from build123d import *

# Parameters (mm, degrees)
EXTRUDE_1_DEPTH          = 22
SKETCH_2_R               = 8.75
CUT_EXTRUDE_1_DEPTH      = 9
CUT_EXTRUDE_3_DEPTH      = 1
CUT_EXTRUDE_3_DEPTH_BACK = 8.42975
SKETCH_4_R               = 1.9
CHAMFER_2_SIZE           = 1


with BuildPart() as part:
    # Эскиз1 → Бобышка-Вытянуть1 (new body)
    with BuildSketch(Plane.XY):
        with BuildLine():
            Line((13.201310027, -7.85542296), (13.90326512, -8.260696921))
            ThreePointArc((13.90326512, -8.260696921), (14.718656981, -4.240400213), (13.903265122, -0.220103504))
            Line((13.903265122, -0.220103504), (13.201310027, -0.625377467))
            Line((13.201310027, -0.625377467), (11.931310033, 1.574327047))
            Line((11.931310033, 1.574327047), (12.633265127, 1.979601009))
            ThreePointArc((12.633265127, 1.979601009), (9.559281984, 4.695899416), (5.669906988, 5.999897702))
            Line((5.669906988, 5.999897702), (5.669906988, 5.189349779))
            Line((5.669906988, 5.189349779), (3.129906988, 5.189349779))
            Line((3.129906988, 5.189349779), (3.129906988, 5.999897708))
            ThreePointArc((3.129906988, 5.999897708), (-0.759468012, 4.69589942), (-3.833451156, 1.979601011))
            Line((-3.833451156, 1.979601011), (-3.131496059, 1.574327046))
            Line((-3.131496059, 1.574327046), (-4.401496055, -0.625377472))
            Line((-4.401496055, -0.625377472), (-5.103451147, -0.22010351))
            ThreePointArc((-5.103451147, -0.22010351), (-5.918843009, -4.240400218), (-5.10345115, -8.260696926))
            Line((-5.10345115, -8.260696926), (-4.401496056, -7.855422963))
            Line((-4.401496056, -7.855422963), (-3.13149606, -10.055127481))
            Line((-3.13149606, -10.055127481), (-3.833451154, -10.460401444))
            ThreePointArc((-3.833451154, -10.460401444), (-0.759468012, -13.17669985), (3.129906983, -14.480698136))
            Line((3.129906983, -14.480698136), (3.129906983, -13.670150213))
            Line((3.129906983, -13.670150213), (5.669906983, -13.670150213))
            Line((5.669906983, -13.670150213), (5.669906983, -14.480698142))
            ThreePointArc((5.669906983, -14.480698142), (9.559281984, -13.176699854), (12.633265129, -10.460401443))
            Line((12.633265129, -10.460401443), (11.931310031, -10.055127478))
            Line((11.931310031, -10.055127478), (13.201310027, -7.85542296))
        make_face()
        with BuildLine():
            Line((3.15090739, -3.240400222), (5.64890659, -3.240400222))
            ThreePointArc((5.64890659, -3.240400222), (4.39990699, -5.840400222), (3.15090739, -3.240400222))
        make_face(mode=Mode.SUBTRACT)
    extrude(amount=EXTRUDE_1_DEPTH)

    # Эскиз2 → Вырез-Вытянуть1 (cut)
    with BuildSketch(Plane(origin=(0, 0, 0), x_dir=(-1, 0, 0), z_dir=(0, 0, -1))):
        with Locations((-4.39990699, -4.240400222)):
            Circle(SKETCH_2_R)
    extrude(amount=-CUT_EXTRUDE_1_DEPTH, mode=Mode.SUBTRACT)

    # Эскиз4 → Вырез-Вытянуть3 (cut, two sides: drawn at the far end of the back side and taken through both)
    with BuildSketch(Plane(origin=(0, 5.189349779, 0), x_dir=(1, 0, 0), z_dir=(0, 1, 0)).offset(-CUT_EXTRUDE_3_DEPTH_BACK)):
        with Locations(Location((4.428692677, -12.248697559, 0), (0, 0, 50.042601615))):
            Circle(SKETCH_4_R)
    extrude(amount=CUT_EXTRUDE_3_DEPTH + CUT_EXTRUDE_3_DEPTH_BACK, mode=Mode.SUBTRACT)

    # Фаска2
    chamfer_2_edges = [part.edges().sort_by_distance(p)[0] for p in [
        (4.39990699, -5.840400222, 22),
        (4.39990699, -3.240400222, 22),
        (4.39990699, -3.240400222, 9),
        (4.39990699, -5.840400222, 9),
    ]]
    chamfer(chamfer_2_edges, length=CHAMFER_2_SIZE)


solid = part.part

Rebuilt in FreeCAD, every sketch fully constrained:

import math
import FreeCAD as App
import Part
import Sketcher
from FreeCAD import Vector
Q = App.Units.Quantity


def edges_at(feature, points):
    """Names of the edges that pass closest to the given points."""
    edges = feature.Shape.Edges
    near = lambda p: min(range(len(edges)), key=lambda i: edges[i].distToShape(Part.Vertex(*p))[0])
    return sorted({f"Edge{near(p) + 1}" for p in points})

doc = App.newDocument("Part")
body = doc.addObject("PartDesign::Body", "Body")

# Sketch on XY plane
sketch1 = body.newObject("Sketcher::SketchObject", "Sketch")
sketch1.AttachmentSupport = (doc.getObject("XY_Plane"), [""])
sketch1.MapMode = "FlatFace"
sketch1.addGeometry([
    Part.LineSegment(Vector(13.2, -7.9, 0), Vector(13.9, -8.3, 0)),  # 0
    Part.ArcOfCircle(Part.Circle(Vector(4.4, -4.2, 0), Vector(0, 0, 1), 10.3), math.radians(-23), math.radians(23)),  # 1
    Part.LineSegment(Vector(13.9, -0.2, 0), Vector(13.2, -0.6, 0)),  # 2
    Part.LineSegment(Vector(13.2, -0.6, 0), Vector(11.9, 1.6, 0)),  # 3
    Part.LineSegment(Vector(11.9, 1.6, 0), Vector(12.6, 2, 0)),  # 4
    Part.ArcOfCircle(Part.Circle(Vector(4.4, -4.2, 0), Vector(0, 0, 1), 10.3), math.radians(37), math.radians(83)),  # 5
    Part.LineSegment(Vector(5.7, 6, 0), Vector(5.7, 5.2, 0)),  # 6
    Part.LineSegment(Vector(5.7, 5.2, 0), Vector(3.1, 5.2, 0)),  # 7
    Part.LineSegment(Vector(3.1, 5.2, 0), Vector(3.1, 6, 0)),  # 8
    Part.ArcOfCircle(Part.Circle(Vector(4.4, -4.2, 0), Vector(0, 0, 1), 10.3), math.radians(97), math.radians(143)),  # 9
    Part.LineSegment(Vector(-3.8, 2, 0), Vector(-3.1, 1.6, 0)),  # 10
    Part.LineSegment(Vector(-3.1, 1.6, 0), Vector(-4.4, -0.6, 0)),  # 11
    Part.LineSegment(Vector(-4.4, -0.6, 0), Vector(-5.1, -0.2, 0)),  # 12
    Part.ArcOfCircle(Part.Circle(Vector(4.4, -4.2, 0), Vector(0, 0, 1), 10.3), math.radians(157), math.radians(203)),  # 13
    Part.LineSegment(Vector(-5.1, -8.3, 0), Vector(-4.4, -7.9, 0)),  # 14
    Part.LineSegment(Vector(-4.4, -7.9, 0), Vector(-3.1, -10.1, 0)),  # 15
    Part.LineSegment(Vector(-3.1, -10.1, 0), Vector(-3.8, -10.5, 0)),  # 16
    Part.ArcOfCircle(Part.Circle(Vector(4.4, -4.2, 0), Vector(0, 0, 1), 10.3), math.radians(-143), math.radians(-97)),  # 17
    Part.LineSegment(Vector(3.1, -14.5, 0), Vector(3.1, -13.7, 0)),  # 18
    Part.LineSegment(Vector(3.1, -13.7, 0), Vector(5.7, -13.7, 0)),  # 19
    Part.LineSegment(Vector(5.7, -13.7, 0), Vector(5.7, -14.5, 0)),  # 20
    Part.ArcOfCircle(Part.Circle(Vector(4.4, -4.2, 0), Vector(0, 0, 1), 10.3), math.radians(-83), math.radians(-37)),  # 21
    Part.LineSegment(Vector(12.6, -10.5, 0), Vector(11.9, -10.1, 0)),  # 22
    Part.LineSegment(Vector(11.9, -10.1, 0), Vector(13.2, -7.9, 0)),  # 23
    Part.ArcOfCircle(Part.Circle(Vector(4.4, -4.2, 0), Vector(0, 0, 1), 1.6), math.radians(141), math.radians(399)),  # 24
    Part.LineSegment(Vector(3.2, -3.2, 0), Vector(5.6, -3.2, 0)),  # 25
], False)
sketch1.addConstraint([
    Sketcher.Constraint("Coincident", 0, 2, 1, 1),
    Sketcher.Constraint("Coincident", 1, 2, 2, 1),
    Sketcher.Constraint("Coincident", 2, 2, 3, 1),
    Sketcher.Constraint("Coincident", 3, 2, 4, 1),
    Sketcher.Constraint("Coincident", 4, 2, 5, 1),
    Sketcher.Constraint("Coincident", 5, 2, 6, 1),
    Sketcher.Constraint("Coincident", 6, 2, 7, 1),
    Sketcher.Constraint("Coincident", 7, 2, 8, 1),
    Sketcher.Constraint("Coincident", 8, 2, 9, 1),
    Sketcher.Constraint("Coincident", 9, 2, 10, 1),
    Sketcher.Constraint("Coincident", 10, 2, 11, 1),
    Sketcher.Constraint("Coincident", 11, 2, 12, 1),
    Sketcher.Constraint("Coincident", 12, 2, 13, 1),
    Sketcher.Constraint("Coincident", 13, 2, 14, 1),
    Sketcher.Constraint("Coincident", 14, 2, 15, 1),
    Sketcher.Constraint("Coincident", 15, 2, 16, 1),
    Sketcher.Constraint("Coincident", 16, 2, 17, 1),
    Sketcher.Constraint("Coincident", 17, 2, 18, 1),
    Sketcher.Constraint("Coincident", 18, 2, 19, 1),
    Sketcher.Constraint("Coincident", 19, 2, 20, 1),
    Sketcher.Constraint("Coincident", 20, 2, 21, 1),
    Sketcher.Constraint("Coincident", 21, 2, 22, 1),
    Sketcher.Constraint("Coincident", 22, 2, 23, 1),
    Sketcher.Constraint("Coincident", 23, 2, 0, 1),
    Sketcher.Constraint("Coincident", 24, 1, 25, 1),
    Sketcher.Constraint("Coincident", 25, 2, 24, 2),
    Sketcher.Constraint("Vertical", 6),
    Sketcher.Constraint("Horizontal", 7),
    Sketcher.Constraint("Vertical", 8),
    Sketcher.Constraint("Vertical", 18),
    Sketcher.Constraint("Horizontal", 19),
    Sketcher.Constraint("Vertical", 20),
    Sketcher.Constraint("Horizontal", 25),
    Sketcher.Constraint("Coincident", 5, 3, 1, 3),
    Sketcher.Constraint("Coincident", 9, 3, 1, 3),
    Sketcher.Constraint("Coincident", 13, 3, 1, 3),
    Sketcher.Constraint("Coincident", 17, 3, 1, 3),
    Sketcher.Constraint("Coincident", 21, 3, 1, 3),
    Sketcher.Constraint("Coincident", 24, 3, 1, 3),
    Sketcher.Constraint("Equal", 1, 5),
    Sketcher.Constraint("Equal", 5, 9),
    Sketcher.Constraint("Equal", 9, 13),
    Sketcher.Constraint("Equal", 13, 17),
    Sketcher.Constraint("Equal", 17, 21),
    Sketcher.Constraint("Perpendicular", 2, 3),
    Sketcher.Constraint("Perpendicular", 3, 4),
    Sketcher.Constraint("Parallel", 0, 10),
    Sketcher.Constraint("Perpendicular", 10, 11),
    Sketcher.Constraint("Perpendicular", 11, 12),
    Sketcher.Constraint("Parallel", 4, 14),
    Sketcher.Constraint("Perpendicular", 14, 15),
    Sketcher.Constraint("Perpendicular", 15, 16),
    Sketcher.Constraint("Parallel", 12, 22),
    Sketcher.Constraint("Perpendicular", 22, 23),
    Sketcher.Constraint("Horizontal", 5, 2, 8, 2),
    Sketcher.Constraint("Horizontal", 4, 2, 9, 2),
    Sketcher.Constraint("Horizontal", 3, 2, 10, 2),
    Sketcher.Constraint("Horizontal", 2, 2, 11, 2),
    Sketcher.Constraint("Horizontal", 1, 2, 12, 2),
    Sketcher.Constraint("Horizontal", 0, 2, 13, 2),
    Sketcher.Constraint("Horizontal", 17, 2, 20, 2),
    Sketcher.Constraint("Horizontal", 16, 2, 21, 2),
    Sketcher.Constraint("Horizontal", 15, 2, 22, 2),
    Sketcher.Constraint("Vertical", 0, 2, 1, 2),
    Sketcher.Constraint("Vertical", 11, 2, 14, 2),
    Sketcher.Constraint("Vertical", 10, 2, 15, 2),
    Sketcher.Constraint("Vertical", 8, 2, 17, 2),
    Sketcher.Constraint("Equal", 8, 18),
    Sketcher.Constraint("Equal", 2, 4),
    Sketcher.Constraint("Radius", 24, 1.6),
    Sketcher.Constraint("Angle", 0, Q("-30 deg")),
    Sketcher.Constraint("DistanceY", 1, 3, 24, 1, 1.0),
    Sketcher.Constraint("DistanceX", 7, 2, 7, 1, 2.54),
    Sketcher.Constraint("Distance", 3, 2.54),
    Sketcher.Constraint("Radius", 1, 10.31875),
    Sketcher.Constraint("DistanceY", 1, 3, -1, 1, 4.2404),
    Sketcher.Constraint("DistanceY", 6, 2, 6, 1, 0.810548),
    Sketcher.Constraint("DistanceX", -1, 1, 2, 2, 13.20131),
    Sketcher.Constraint("DistanceX", 9, 2, -1, 1, 3.833451),
])
pad1 = body.newObject("PartDesign::Pad", "Pad")
pad1.Profile = sketch1
pad1.Length = 22

# Sketch on XY plane
sketch2 = body.newObject("Sketcher::SketchObject", "Sketch001")
sketch2.AttachmentSupport = (doc.getObject("XY_Plane"), [""])
sketch2.MapMode = "FlatFace"
sketch2.addGeometry(Part.Circle(Vector(4, -4, 0), Vector(0, 0, 1), 9), False)
sketch2.addConstraint([
    Sketcher.Constraint("Diameter", 0, 17.5),
    Sketcher.Constraint("DistanceY", 0, 3, -1, 1, 4.2404),
    Sketcher.Constraint("DistanceX", -1, 1, 0, 3, 4.399907),
])
pocket1 = body.newObject("PartDesign::Pocket", "Pocket")
pocket1.Profile = sketch2
pocket1.Length = 9
pocket1.Reversed = True

# Sketch on XZ plane
sketch3 = body.newObject("Sketcher::SketchObject", "Sketch002")
sketch3.AttachmentSupport = (doc.getObject("XZ_Plane"), [""])
sketch3.MapMode = "FlatFace"
sketch3.AttachmentOffset = App.Placement(Vector(0, 0, -5.18935), App.Rotation())
sketch3.addGeometry(Part.Circle(Vector(4.4, 12.2, 0), Vector(0, 0, 1), 1.9), False)
sketch3.addConstraint([
    Sketcher.Constraint("Diameter", 0, 3.8),
    Sketcher.Constraint("DistanceX", -1, 1, 0, 3, 4.428693),
    Sketcher.Constraint("DistanceY", -1, 1, 0, 3, 12.248698),
])
pocket2 = body.newObject("PartDesign::Pocket", "Pocket001")
pocket2.Profile = sketch3
pocket2.Type = "TwoLengths"
pocket2.Length = 1
pocket2.Length2 = 8.42975
doc.recompute()

chamfer = body.newObject("PartDesign::Chamfer", "Chamfer")
chamfer.Base = (pocket2, edges_at(pocket2, [
    (4.4, -5.84, 22),
    (4.4, -3.24, 22),
    (4.4, -3.24, 9),
    (4.4, -5.84, 9),
]))
chamfer.Size = 1

doc.recompute()
